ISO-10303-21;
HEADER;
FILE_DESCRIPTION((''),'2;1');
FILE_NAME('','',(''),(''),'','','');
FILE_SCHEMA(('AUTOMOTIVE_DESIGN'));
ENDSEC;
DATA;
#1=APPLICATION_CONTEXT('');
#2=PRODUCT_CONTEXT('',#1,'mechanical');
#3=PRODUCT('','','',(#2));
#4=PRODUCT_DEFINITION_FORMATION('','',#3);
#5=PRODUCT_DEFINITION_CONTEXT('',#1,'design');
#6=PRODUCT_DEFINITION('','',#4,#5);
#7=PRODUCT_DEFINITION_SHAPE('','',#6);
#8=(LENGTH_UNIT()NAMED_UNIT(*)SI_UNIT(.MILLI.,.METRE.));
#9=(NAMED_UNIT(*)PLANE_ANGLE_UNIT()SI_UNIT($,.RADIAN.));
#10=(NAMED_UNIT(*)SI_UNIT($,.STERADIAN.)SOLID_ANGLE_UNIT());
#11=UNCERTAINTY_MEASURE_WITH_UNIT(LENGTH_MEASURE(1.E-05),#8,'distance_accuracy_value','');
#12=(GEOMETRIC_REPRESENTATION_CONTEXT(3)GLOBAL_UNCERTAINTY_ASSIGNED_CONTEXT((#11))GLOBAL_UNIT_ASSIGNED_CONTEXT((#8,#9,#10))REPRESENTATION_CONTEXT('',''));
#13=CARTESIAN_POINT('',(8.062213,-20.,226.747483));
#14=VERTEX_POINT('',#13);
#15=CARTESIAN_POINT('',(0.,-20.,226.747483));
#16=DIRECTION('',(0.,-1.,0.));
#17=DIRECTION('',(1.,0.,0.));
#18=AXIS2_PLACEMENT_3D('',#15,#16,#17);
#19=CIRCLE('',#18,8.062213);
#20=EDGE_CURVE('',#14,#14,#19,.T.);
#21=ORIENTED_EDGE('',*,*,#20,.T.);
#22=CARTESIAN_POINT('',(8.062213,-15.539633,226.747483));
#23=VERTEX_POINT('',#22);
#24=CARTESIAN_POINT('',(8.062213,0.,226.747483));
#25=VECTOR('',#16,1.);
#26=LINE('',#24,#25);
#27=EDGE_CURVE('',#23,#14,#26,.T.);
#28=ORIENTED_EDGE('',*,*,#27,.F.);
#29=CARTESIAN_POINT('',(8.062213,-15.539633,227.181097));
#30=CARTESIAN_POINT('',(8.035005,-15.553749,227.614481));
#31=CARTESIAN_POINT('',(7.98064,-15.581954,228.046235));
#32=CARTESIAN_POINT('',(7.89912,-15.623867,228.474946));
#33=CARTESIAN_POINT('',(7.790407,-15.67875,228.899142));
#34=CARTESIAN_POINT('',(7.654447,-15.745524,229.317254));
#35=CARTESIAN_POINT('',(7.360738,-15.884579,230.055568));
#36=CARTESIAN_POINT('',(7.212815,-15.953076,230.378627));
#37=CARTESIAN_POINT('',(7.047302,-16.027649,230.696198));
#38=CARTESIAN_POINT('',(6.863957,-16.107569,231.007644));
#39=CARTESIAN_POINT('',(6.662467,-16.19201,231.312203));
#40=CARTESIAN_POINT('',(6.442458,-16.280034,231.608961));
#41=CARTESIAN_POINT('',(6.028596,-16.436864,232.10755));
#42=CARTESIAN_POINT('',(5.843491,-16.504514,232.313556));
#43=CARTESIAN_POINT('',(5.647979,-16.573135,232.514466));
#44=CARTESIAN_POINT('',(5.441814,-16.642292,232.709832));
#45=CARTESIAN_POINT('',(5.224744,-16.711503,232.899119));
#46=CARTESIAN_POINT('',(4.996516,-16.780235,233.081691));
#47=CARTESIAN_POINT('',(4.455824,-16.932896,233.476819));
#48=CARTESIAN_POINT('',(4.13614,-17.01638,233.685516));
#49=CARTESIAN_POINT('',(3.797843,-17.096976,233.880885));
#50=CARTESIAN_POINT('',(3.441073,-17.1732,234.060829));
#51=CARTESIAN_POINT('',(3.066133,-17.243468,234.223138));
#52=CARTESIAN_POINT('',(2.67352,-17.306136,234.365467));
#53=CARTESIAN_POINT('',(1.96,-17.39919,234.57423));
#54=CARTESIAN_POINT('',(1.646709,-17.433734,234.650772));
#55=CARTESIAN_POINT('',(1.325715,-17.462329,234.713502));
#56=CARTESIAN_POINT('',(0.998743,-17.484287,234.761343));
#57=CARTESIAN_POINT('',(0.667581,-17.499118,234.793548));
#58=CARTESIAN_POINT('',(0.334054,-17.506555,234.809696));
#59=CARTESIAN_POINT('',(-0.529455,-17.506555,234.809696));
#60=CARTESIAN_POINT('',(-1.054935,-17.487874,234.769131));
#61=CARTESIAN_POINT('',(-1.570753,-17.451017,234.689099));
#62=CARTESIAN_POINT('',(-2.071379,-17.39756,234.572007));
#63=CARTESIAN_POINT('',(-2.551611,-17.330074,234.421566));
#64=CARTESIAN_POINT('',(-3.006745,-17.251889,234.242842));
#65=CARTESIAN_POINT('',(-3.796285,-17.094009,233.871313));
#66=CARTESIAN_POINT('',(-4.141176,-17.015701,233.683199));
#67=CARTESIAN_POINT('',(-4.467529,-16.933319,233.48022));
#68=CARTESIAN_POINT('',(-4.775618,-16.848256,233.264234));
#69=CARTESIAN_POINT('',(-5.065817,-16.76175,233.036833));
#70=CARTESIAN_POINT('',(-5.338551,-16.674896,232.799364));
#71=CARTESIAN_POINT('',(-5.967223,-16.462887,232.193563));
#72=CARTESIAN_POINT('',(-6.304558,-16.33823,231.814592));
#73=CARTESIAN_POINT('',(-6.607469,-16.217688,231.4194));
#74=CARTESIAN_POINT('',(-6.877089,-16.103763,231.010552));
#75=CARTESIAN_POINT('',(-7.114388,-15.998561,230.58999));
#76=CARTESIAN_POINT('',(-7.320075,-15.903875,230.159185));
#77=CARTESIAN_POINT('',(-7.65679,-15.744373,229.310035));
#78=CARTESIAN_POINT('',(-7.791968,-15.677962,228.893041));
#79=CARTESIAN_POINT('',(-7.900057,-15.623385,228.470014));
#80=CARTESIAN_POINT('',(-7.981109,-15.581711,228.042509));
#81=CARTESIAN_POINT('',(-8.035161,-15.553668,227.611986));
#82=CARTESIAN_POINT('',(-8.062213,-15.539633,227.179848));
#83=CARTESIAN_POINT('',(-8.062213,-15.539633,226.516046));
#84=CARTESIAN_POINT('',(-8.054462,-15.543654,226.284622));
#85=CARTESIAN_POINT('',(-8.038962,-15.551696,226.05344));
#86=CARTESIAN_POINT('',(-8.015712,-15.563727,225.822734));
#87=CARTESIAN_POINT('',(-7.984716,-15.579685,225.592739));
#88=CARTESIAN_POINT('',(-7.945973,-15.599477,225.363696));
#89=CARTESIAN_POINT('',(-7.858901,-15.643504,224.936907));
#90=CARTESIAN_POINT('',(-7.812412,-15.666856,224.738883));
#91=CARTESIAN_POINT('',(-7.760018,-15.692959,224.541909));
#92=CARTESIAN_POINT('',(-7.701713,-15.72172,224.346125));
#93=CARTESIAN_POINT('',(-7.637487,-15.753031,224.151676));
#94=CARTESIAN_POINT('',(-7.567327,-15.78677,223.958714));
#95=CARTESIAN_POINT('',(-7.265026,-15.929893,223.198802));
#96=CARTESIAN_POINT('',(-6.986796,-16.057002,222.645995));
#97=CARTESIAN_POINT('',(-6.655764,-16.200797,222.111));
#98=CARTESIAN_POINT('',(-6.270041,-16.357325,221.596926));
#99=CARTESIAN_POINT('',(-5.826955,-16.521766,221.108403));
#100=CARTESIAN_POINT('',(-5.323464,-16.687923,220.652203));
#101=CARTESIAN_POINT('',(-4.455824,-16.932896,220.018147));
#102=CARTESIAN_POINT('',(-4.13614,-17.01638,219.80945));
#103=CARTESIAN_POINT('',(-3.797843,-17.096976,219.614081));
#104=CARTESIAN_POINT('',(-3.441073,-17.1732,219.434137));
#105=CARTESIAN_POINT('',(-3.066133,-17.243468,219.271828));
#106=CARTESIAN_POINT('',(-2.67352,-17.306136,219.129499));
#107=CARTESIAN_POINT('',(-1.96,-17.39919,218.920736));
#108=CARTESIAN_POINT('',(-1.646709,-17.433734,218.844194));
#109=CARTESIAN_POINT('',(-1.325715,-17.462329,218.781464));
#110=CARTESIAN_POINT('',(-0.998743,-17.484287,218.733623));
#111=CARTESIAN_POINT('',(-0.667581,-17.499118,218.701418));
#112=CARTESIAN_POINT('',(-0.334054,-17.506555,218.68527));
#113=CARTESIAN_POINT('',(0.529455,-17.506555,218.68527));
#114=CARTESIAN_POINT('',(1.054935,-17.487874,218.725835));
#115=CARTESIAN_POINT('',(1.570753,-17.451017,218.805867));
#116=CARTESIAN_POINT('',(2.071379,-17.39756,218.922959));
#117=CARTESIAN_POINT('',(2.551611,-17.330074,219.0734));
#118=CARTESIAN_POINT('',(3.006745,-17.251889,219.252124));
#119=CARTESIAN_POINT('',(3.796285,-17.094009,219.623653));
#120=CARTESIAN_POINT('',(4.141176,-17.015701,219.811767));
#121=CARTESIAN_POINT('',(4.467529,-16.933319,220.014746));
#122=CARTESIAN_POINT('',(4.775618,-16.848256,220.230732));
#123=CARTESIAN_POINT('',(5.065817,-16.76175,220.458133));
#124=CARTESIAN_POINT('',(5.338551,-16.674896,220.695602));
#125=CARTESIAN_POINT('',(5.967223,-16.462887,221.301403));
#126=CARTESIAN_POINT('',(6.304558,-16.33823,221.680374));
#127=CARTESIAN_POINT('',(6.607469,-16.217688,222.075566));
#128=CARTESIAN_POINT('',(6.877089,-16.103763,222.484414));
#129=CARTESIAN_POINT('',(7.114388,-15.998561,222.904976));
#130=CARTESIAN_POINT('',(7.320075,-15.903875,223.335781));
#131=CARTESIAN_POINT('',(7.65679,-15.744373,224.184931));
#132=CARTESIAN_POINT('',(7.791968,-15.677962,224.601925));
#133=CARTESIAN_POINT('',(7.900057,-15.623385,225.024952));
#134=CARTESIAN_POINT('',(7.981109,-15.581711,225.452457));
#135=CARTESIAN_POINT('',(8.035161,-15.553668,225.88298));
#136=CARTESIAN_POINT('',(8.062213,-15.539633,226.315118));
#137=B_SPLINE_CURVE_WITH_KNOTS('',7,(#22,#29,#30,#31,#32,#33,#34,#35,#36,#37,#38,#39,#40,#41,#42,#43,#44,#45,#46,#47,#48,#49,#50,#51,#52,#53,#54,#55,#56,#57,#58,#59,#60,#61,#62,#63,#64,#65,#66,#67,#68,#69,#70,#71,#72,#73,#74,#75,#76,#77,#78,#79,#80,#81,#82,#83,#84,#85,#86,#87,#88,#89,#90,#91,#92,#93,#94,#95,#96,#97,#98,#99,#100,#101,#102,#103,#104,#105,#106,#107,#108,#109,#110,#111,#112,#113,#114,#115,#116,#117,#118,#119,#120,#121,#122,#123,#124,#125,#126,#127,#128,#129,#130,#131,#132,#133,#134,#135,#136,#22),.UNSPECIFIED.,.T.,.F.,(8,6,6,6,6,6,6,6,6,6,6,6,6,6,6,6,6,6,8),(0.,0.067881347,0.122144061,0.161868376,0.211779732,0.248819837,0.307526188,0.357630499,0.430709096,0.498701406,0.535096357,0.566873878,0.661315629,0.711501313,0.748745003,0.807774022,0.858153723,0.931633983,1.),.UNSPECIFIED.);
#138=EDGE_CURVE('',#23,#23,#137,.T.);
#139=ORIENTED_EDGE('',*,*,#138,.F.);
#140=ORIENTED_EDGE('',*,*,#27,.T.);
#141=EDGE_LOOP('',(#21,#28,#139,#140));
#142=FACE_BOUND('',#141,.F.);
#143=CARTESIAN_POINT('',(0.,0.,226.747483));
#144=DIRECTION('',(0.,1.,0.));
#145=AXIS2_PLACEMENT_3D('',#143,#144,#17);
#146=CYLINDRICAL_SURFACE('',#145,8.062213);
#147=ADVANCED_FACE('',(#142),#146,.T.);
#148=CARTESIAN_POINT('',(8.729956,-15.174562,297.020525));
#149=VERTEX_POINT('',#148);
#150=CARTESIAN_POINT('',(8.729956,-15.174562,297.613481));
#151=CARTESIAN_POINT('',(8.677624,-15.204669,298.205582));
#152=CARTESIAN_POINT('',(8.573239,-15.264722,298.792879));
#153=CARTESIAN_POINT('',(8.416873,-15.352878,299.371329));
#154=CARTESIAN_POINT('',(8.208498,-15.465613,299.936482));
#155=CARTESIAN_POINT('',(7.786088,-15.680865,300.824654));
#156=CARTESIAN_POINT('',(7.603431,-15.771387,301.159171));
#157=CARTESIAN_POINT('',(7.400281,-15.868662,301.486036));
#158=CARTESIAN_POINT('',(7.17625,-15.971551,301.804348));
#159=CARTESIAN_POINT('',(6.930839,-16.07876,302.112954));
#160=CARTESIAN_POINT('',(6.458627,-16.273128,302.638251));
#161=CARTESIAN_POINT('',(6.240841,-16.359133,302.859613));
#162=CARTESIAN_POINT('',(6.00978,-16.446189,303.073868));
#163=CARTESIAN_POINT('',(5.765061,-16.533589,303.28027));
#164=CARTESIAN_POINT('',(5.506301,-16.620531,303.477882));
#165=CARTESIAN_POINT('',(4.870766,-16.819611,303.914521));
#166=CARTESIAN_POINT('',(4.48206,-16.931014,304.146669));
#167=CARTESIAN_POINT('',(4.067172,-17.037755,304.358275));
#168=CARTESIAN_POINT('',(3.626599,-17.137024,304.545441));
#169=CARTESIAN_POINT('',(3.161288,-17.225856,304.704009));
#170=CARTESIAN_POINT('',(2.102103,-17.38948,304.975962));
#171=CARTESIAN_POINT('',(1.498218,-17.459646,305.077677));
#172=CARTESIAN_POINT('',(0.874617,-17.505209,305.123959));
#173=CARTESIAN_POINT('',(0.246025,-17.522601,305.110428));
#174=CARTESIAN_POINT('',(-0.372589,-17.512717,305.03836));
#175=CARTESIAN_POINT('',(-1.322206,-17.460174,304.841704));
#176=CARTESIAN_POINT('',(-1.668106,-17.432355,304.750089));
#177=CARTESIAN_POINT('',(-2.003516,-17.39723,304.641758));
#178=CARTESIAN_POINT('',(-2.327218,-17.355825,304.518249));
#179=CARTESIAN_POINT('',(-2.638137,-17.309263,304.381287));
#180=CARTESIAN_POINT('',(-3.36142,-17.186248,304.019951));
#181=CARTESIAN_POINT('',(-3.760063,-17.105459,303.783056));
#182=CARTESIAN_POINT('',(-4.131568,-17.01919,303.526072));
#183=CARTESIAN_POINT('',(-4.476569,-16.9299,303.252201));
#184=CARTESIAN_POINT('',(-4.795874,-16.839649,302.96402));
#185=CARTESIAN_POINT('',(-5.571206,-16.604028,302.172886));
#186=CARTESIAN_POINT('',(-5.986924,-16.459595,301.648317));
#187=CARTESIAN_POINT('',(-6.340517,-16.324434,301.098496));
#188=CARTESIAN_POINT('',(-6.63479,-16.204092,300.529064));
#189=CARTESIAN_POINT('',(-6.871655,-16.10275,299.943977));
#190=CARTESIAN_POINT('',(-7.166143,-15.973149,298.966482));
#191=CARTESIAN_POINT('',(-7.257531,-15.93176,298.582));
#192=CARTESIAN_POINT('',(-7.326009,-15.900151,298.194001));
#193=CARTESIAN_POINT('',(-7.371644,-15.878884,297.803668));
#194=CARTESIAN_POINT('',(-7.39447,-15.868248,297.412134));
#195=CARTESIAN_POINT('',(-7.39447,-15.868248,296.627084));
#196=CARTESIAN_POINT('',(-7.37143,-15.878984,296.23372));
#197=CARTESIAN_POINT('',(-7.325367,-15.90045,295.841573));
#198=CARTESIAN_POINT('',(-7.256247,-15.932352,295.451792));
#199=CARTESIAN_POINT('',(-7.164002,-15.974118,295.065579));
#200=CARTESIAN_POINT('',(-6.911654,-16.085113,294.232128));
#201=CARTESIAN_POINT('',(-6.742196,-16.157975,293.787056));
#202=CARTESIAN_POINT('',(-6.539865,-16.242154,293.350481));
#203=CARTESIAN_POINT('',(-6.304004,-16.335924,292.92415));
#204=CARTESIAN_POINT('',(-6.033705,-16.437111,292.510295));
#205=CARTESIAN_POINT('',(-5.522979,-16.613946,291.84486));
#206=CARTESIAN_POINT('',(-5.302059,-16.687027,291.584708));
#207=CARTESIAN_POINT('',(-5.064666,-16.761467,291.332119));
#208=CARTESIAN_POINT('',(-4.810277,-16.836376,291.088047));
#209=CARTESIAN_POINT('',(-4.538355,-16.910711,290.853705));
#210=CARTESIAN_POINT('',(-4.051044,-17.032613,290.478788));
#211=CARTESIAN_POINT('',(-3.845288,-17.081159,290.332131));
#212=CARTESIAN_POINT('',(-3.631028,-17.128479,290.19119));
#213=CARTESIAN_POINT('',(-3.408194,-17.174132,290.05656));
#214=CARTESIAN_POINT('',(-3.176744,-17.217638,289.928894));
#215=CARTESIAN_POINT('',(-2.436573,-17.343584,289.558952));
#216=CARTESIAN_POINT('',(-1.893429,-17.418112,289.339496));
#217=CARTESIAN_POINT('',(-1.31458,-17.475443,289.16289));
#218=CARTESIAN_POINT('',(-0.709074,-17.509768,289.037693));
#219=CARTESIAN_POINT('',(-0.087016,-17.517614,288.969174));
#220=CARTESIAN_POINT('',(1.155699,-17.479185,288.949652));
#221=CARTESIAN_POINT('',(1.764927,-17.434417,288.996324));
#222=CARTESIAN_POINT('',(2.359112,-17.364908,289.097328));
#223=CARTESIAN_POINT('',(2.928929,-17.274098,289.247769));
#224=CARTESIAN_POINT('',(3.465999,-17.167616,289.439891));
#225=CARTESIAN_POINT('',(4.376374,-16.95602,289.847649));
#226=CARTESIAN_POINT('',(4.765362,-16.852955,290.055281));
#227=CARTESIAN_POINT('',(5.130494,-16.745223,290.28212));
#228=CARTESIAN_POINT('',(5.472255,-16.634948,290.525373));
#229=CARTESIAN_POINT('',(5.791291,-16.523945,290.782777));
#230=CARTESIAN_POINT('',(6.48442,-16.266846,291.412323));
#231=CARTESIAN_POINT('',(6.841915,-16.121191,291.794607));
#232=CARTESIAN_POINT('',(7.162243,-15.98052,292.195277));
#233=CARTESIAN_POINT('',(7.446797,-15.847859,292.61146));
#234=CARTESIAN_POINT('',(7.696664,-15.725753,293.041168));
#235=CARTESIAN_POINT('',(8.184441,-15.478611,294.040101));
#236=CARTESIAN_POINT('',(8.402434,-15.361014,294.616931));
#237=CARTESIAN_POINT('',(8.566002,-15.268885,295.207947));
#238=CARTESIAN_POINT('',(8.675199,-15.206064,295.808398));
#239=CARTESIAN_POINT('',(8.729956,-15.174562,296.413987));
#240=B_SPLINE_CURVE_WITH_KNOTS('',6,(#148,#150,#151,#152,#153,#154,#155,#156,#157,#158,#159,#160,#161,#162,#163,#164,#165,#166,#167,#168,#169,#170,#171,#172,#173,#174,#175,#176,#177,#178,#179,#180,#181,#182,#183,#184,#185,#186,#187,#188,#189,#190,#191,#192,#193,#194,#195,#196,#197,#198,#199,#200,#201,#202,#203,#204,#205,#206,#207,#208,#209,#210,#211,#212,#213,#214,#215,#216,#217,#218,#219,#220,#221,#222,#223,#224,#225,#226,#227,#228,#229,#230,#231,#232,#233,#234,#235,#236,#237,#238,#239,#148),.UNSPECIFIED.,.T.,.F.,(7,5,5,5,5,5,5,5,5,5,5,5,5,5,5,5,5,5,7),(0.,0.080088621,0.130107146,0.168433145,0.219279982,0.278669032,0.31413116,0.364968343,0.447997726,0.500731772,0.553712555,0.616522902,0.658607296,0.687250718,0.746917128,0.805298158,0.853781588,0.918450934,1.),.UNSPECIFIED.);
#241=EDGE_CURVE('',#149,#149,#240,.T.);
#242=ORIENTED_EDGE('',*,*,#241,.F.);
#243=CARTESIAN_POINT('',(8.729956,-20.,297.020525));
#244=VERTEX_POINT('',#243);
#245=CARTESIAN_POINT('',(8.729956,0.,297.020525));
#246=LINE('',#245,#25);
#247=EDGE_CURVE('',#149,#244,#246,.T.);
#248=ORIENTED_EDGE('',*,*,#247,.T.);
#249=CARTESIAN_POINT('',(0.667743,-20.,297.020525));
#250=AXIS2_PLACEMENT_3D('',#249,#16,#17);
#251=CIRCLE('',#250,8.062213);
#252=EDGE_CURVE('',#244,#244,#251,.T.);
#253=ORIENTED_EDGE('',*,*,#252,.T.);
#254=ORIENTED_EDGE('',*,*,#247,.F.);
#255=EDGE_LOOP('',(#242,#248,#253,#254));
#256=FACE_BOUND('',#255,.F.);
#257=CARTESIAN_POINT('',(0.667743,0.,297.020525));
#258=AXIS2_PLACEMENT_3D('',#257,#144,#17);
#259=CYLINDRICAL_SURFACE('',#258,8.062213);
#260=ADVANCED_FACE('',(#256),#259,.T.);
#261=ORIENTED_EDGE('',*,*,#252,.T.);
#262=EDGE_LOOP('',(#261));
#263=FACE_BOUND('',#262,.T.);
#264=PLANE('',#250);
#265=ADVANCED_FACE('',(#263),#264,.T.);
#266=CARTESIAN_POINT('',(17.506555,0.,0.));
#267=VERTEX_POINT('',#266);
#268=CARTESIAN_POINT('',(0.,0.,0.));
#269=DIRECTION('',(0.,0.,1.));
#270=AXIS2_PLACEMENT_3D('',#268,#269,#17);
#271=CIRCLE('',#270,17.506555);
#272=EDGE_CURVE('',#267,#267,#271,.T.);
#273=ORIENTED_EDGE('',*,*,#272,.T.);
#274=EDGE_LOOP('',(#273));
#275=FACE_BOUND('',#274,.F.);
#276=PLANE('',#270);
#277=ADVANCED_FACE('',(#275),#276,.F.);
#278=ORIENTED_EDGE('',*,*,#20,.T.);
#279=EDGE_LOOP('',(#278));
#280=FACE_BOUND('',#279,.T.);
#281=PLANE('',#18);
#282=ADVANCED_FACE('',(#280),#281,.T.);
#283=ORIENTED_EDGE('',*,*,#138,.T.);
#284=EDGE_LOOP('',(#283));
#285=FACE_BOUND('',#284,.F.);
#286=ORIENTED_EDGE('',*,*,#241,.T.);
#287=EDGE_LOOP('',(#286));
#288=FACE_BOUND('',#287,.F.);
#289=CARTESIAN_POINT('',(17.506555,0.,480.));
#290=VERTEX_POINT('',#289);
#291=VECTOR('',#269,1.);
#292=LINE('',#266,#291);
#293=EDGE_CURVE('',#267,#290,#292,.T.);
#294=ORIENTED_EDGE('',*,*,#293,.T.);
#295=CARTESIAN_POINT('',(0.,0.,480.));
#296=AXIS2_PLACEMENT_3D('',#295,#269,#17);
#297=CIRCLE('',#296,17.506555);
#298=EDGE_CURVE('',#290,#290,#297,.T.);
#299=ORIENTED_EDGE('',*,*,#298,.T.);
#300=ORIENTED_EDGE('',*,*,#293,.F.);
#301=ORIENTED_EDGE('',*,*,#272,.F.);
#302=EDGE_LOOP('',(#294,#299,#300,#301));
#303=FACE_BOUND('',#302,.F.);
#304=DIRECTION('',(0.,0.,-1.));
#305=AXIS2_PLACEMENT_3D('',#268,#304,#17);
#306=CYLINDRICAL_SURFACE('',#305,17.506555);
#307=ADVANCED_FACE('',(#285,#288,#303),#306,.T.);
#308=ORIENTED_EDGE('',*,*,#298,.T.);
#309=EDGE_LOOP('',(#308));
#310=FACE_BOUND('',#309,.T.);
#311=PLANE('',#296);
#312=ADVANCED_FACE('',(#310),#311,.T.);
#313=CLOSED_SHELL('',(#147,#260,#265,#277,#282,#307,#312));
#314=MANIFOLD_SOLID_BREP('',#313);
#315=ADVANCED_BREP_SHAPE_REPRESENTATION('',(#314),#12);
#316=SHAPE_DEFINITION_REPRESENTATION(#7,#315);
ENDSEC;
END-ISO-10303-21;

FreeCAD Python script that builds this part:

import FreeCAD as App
import Part
import Sketcher
from FreeCAD import Vector
Q = App.Units.Quantity

doc = App.newDocument("Part")
body = doc.addObject("PartDesign::Body", "Body")

sketch1 = body.newObject("Sketcher::SketchObject", "Sketch")
sketch1.AttachmentSupport = (doc.getObject("XY_Plane"), [""])
sketch1.MapMode = "FlatFace"
sketch1.addGeometry(Part.Circle(Vector(0, 0, 0), Vector(0, 0, 1), 18), False)
sketch1.addConstraint([
    Sketcher.Constraint("Coincident", 0, 3, -1, 1),
    Sketcher.Constraint("Diameter", 0, Q("35.01311 mm")),
])
pad1 = body.newObject("PartDesign::Pad", "Pad")
pad1.Profile = sketch1
pad1.Length = 480

sketch2 = body.newObject("Sketcher::SketchObject", "Sketch001")
sketch2.AttachmentSupport = (doc.getObject("XZ_Plane"), [""])
sketch2.MapMode = "FlatFace"
sketch2.addGeometry(Part.Circle(Vector(0, 227, 0), Vector(0, 0, 1), 8), False)
sketch2.addConstraint([
    Sketcher.Constraint("PointOnObject", 0, 3, -2),
    Sketcher.Constraint("Diameter", 0, Q("16.124426 mm")),
    Sketcher.Constraint("DistanceY", -1, 1, 0, 3, Q("226.747483 mm")),
])
pad2 = body.newObject("PartDesign::Pad", "Pad001")
pad2.Profile = sketch2
pad2.Length = 20

sketch3 = body.newObject("Sketcher::SketchObject", "Sketch002")
sketch3.AttachmentSupport = (doc.getObject("XZ_Plane"), [""])
sketch3.MapMode = "FlatFace"
sketch3.addGeometry(Part.Circle(Vector(1, 297, 0), Vector(0, 0, 1), 8), False)
sketch3.addConstraint([
    Sketcher.Constraint("Diameter", 0, Q("16.124426 mm")),
    Sketcher.Constraint("DistanceX", -1, 1, 0, 3, Q("0.667743 mm")),
    Sketcher.Constraint("DistanceY", -1, 1, 0, 3, Q("297.020525 mm")),
])
pad3 = body.newObject("PartDesign::Pad", "Pad002")
pad3.Profile = sketch3
pad3.Length = 20

doc.recompute()
